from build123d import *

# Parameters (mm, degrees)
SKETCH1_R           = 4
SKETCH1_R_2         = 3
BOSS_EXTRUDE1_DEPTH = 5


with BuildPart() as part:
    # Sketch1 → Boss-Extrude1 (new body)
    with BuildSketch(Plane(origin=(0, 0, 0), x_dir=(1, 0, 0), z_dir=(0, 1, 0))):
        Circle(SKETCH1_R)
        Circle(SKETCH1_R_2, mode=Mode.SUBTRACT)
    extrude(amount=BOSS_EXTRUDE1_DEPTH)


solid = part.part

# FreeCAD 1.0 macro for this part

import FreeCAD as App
import Part
import Sketcher
from FreeCAD import Vector
Q = App.Units.Quantity

doc = App.newDocument("Part")
params = doc.addObject("Spreadsheet::Sheet", "Params")
for row, (alias, value) in enumerate([
    ("sketch1_diameter", "8 mm"),
    ("sketch1_diameter2", "6 mm"),
    ("pad1_length", "5 mm"),
], start=1):
    params.set(f"A{row}", alias)
    params.set(f"B{row}", "=" + value)
    params.setAlias(f"B{row}", alias)

body = doc.addObject("PartDesign::Body", "Body")

sketch1 = body.newObject("Sketcher::SketchObject", "Sketch")
sketch1.AttachmentSupport = (doc.getObject("XZ_Plane"), [""])
sketch1.MapMode = "FlatFace"
sketch1.addGeometry(Part.Circle(Vector(0, 0, 0), Vector(0, 0, 1), 4), False)
sketch1.addGeometry(Part.Circle(Vector(0, 0, 0), Vector(0, 0, 1), 3), False)
sketch1.addConstraint(Sketcher.Constraint("Coincident", 0, 3, -1, 1))
sketch1.addConstraint(Sketcher.Constraint("Coincident", 1, 3, -1, 1))
sketch1.addConstraint(Sketcher.Constraint("Diameter", 0, Q("8 mm")))
sketch1.addConstraint(Sketcher.Constraint("Diameter", 1, Q("6 mm")))
sketch1.setExpression("Constraints[2]", "Params.sketch1_diameter")
sketch1.setExpression("Constraints[3]", "Params.sketch1_diameter2")
pad1 = body.newObject("PartDesign::Pad", "Pad")
pad1.Profile = sketch1
pad1.setExpression("Length", "Params.pad1_length")
pad1.Reversed = True

doc.recompute()
